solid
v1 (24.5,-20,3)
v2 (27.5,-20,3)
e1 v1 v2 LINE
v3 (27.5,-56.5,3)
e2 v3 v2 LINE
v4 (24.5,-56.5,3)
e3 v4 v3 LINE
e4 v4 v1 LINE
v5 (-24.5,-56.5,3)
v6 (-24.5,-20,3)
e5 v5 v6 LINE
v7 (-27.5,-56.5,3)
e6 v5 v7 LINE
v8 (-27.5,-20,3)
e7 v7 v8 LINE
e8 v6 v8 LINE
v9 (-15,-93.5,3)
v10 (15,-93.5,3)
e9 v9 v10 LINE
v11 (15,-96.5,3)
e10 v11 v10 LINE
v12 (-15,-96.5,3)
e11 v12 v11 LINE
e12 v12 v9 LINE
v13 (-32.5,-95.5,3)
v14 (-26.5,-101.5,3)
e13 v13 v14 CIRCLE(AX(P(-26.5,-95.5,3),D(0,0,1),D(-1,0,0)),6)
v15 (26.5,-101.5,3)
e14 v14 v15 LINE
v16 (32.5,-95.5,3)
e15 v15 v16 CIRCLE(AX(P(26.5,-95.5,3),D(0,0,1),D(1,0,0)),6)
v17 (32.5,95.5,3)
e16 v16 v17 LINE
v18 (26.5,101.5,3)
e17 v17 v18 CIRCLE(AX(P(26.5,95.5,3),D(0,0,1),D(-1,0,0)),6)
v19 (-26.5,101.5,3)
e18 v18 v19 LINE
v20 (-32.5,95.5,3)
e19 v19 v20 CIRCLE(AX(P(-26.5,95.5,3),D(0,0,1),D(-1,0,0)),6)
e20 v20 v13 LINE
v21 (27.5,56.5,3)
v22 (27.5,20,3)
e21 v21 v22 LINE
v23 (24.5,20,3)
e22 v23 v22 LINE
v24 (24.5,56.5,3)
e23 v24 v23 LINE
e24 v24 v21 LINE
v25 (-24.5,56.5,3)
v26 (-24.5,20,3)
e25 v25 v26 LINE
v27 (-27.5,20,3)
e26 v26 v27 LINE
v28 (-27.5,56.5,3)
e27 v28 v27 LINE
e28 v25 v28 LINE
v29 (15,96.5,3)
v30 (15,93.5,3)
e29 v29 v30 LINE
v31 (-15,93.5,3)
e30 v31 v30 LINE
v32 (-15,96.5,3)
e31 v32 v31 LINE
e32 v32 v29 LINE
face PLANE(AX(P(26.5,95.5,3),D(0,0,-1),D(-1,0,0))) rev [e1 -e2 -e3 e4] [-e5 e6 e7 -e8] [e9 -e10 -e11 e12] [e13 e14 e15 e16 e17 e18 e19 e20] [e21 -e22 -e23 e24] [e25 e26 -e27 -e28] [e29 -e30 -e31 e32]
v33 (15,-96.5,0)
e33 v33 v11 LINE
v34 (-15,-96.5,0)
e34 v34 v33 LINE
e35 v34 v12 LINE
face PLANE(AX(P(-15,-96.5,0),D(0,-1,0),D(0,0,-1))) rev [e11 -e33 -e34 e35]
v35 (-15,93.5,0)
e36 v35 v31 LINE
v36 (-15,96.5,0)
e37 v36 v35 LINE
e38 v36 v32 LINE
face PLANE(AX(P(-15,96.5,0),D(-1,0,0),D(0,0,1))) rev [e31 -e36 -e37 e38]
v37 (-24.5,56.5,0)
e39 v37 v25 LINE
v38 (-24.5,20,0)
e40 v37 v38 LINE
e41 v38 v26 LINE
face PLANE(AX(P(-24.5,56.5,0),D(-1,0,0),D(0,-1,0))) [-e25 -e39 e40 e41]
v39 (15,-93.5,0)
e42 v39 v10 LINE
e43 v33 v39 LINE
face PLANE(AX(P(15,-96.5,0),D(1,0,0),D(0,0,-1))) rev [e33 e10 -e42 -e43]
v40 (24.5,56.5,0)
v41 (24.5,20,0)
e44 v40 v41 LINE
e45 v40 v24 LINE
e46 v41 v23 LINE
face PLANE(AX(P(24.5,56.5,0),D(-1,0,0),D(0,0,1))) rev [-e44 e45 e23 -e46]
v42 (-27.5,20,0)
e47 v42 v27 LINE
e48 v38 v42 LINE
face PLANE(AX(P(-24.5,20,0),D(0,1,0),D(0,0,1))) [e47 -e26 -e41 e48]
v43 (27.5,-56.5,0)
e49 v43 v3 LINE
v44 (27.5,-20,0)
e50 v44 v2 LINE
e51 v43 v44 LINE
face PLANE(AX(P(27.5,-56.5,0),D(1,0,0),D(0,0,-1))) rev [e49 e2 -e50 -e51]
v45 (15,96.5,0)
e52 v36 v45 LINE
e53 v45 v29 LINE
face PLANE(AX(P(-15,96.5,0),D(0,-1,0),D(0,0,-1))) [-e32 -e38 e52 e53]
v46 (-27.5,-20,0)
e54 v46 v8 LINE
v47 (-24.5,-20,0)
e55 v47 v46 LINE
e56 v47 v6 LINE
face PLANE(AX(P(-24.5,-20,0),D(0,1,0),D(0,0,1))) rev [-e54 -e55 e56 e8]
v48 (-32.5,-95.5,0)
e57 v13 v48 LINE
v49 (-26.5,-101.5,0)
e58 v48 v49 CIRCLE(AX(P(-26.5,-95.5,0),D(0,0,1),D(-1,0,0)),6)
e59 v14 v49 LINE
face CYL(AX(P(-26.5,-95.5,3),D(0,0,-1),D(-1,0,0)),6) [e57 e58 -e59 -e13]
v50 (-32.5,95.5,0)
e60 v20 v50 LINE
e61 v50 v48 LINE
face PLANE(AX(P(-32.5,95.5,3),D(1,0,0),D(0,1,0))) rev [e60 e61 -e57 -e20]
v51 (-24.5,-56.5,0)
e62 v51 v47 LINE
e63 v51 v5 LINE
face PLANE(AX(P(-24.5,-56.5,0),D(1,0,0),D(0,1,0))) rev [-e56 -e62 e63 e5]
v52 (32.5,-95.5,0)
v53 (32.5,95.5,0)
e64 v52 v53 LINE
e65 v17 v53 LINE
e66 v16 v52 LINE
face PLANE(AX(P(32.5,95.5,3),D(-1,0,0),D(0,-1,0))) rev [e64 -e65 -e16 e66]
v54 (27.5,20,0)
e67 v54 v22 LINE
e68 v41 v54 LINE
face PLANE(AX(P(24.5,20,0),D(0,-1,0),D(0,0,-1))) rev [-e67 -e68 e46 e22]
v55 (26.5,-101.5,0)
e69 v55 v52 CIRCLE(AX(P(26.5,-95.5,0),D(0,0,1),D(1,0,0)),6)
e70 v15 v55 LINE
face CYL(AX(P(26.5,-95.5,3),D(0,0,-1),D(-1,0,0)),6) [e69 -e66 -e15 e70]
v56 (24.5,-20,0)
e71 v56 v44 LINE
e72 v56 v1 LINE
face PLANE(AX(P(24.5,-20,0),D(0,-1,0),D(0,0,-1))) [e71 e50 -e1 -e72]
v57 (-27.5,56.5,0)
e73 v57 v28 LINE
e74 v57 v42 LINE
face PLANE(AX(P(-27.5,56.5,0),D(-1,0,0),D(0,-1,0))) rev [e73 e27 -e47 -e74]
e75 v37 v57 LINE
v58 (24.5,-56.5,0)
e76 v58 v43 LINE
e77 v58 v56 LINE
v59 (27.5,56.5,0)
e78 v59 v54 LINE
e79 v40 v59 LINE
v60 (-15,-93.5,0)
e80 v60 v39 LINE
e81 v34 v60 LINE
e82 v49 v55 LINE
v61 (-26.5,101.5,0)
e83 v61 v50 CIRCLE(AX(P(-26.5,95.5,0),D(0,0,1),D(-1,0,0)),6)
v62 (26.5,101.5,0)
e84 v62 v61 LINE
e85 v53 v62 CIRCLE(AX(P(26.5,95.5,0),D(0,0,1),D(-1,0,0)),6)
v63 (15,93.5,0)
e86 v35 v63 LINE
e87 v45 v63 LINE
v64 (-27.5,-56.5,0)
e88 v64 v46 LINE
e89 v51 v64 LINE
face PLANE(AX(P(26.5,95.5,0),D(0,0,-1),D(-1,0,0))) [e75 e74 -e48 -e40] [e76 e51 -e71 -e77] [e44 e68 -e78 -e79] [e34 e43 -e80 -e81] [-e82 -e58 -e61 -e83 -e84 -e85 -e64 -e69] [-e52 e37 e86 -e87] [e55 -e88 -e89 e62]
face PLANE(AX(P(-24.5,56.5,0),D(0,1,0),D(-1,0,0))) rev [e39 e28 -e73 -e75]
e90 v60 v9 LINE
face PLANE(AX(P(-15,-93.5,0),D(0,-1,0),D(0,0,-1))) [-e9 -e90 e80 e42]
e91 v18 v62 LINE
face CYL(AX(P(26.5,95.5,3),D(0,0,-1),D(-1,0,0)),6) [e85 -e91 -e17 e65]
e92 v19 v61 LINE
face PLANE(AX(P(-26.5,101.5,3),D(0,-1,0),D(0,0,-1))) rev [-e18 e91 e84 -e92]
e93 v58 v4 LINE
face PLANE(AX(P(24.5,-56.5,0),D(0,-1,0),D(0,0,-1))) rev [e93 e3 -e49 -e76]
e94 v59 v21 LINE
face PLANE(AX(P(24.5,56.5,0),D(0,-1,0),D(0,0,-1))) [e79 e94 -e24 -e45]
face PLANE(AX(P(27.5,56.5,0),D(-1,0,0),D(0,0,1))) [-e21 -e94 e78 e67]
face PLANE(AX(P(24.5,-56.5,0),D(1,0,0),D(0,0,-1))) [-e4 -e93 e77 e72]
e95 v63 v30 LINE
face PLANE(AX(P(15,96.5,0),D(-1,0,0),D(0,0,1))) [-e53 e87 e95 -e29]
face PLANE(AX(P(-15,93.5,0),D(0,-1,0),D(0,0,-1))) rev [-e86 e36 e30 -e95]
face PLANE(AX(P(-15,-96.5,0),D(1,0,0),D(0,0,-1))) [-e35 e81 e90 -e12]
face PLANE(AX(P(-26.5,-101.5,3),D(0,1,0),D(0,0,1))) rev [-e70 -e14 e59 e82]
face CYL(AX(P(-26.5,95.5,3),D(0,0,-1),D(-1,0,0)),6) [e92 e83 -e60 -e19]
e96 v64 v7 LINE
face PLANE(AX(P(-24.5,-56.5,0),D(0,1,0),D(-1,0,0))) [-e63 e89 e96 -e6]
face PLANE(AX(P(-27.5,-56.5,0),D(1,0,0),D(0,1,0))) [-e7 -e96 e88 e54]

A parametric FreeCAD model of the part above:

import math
import FreeCAD as App
import Part
import Sketcher
Q = App.Units.Quantity


def add_polygon(sketch, points):
    """Adds a closed chain of lines whose ends are joined by coincident constraints."""
    first, n = sketch.GeometryCount, len(points)
    for a, b in zip(points, points[1:] + points[:1]):
        sketch.addGeometry(Part.LineSegment(App.Vector(*a, 0), App.Vector(*b, 0)), False)
    for i in range(n):
        sketch.addConstraint(Sketcher.Constraint("Coincident", first + i, 2, first + (i + 1) % n, 1))

doc = App.newDocument("Part")
params = doc.addObject("Spreadsheet::Sheet", "Params")
for row, (alias, value) in enumerate([
    ("sketch1_radius", "6 mm"),
    ("sketch1_width", "53 mm"),
    ("sketch1_height", "191 mm"),
    ("pad1_length", "3 mm"),
    ("sketch2_width", "3 mm"),
    ("sketch2_width2", "30 mm"),
    ("sketch2_height", "36.5 mm"),
    ("pocket1_length", "3 mm"),
], start=1):
    params.set(f"A{row}", alias)
    params.set(f"B{row}", "=" + value)
    params.setAlias(f"B{row}", alias)

body = doc.addObject("PartDesign::Body", "Body")

# Sketch on XY plane
sketch1 = body.newObject("Sketcher::SketchObject", "Sketch")
sketch1.AttachmentSupport = (doc.getObject("XY_Plane"), [""])
sketch1.MapMode = "FlatFace"
sketch1.addGeometry([
    Part.LineSegment(App.Vector(26, 102, 0), App.Vector(-26, 102, 0)),  # 0
    Part.ArcOfCircle(Part.Circle(App.Vector(-26, 96, 0), App.Vector(0, 0, 1), 6), math.radians(90), math.radians(180)),  # 1
    Part.LineSegment(App.Vector(-32, 96, 0), App.Vector(-32, -96, 0)),  # 2
    Part.ArcOfCircle(Part.Circle(App.Vector(-26, -96, 0), App.Vector(0, 0, 1), 6), math.radians(180), math.radians(270)),  # 3
    Part.LineSegment(App.Vector(-26, -102, 0), App.Vector(26, -102, 0)),  # 4
    Part.ArcOfCircle(Part.Circle(App.Vector(26, -96, 0), App.Vector(0, 0, 1), 6), math.radians(-90), math.radians(0)),  # 5
    Part.LineSegment(App.Vector(32, -96, 0), App.Vector(32, 96, 0)),  # 6
    Part.ArcOfCircle(Part.Circle(App.Vector(26, 96, 0), App.Vector(0, 0, 1), 6), math.radians(0), math.radians(90)),  # 7
], False)
sketch1.addConstraint([
    Sketcher.Constraint("Tangent", 0, 2, 1, 1),
    Sketcher.Constraint("Tangent", 1, 2, 2, 1),
    Sketcher.Constraint("Tangent", 2, 2, 3, 1),
    Sketcher.Constraint("Tangent", 3, 2, 4, 1),
    Sketcher.Constraint("Tangent", 4, 2, 5, 1),
    Sketcher.Constraint("Tangent", 5, 2, 6, 1),
    Sketcher.Constraint("Tangent", 6, 2, 7, 1),
    Sketcher.Constraint("Tangent", 7, 2, 0, 1),
    Sketcher.Constraint("Horizontal", 0),
    Sketcher.Constraint("Vertical", 2),
    Sketcher.Constraint("Horizontal", 4),
    Sketcher.Constraint("Vertical", 6),
    Sketcher.Constraint("Equal", 1, 3),
    Sketcher.Constraint("Equal", 3, 5),
    Sketcher.Constraint("Equal", 5, 7),
    Sketcher.Constraint("Symmetric", 1, 3, 5, 3, -1, 1),
    Sketcher.Constraint("Radius", 1, Q("6 mm")),
    Sketcher.Constraint("DistanceX", 0, 2, 0, 1, Q("53 mm")),
    Sketcher.Constraint("DistanceY", 2, 2, 2, 1, Q("191 mm")),
])
sketch1.setExpression("Constraints[16]", "Params.sketch1_radius")
sketch1.setExpression("Constraints[17]", "Params.sketch1_width")
sketch1.setExpression("Constraints[18]", "Params.sketch1_height")
pad1 = body.newObject("PartDesign::Pad", "Pad")
pad1.Profile = sketch1
pad1.setExpression("Length", "Params.pad1_length")

# Sketch on XY plane
sketch2 = body.newObject("Sketcher::SketchObject", "Sketch001")
sketch2.AttachmentSupport = (doc.getObject("XY_Plane"), [""])
sketch2.MapMode = "FlatFace"
sketch2.AttachmentOffset = App.Placement(App.Vector(0, 0, 3), App.Rotation())
add_polygon(sketch2, [(24.5, -20), (24.5, -56.5), (27.5, -56.5), (27.5, -20)])  # lines 0-3
add_polygon(sketch2, [(-15, 96.5), (-15, 93.5), (15, 93.5), (15, 96.5)])  # lines 4-7
add_polygon(sketch2, [(24.5, 56.5), (24.5, 20), (27.5, 20), (27.5, 56.5)])  # lines 8-11
add_polygon(sketch2, [(-15, -93.5), (-15, -96.5), (15, -96.5), (15, -93.5)])  # lines 12-15
add_polygon(sketch2, [(-27.5, 56.5), (-27.5, 20), (-24.5, 20), (-24.5, 56.5)])  # lines 16-19
add_polygon(sketch2, [(-27.5, -20), (-27.5, -56.5), (-24.5, -56.5), (-24.5, -20)])  # lines 20-23
sketch2.addConstraint([
    Sketcher.Constraint("Vertical", 0),
    Sketcher.Constraint("Horizontal", 1),
    Sketcher.Constraint("Vertical", 2),
    Sketcher.Constraint("Horizontal", 3),
    Sketcher.Constraint("Vertical", 4),
    Sketcher.Constraint("Horizontal", 5),
    Sketcher.Constraint("Vertical", 6),
    Sketcher.Constraint("Horizontal", 7),
    Sketcher.Constraint("Vertical", 8),
    Sketcher.Constraint("Horizontal", 9),
    Sketcher.Constraint("Vertical", 10),
    Sketcher.Constraint("Horizontal", 11),
    Sketcher.Constraint("Vertical", 12),
    Sketcher.Constraint("Horizontal", 13),
    Sketcher.Constraint("Vertical", 14),
    Sketcher.Constraint("Horizontal", 15),
    Sketcher.Constraint("Vertical", 16),
    Sketcher.Constraint("Horizontal", 17),
    Sketcher.Constraint("Vertical", 18),
    Sketcher.Constraint("Horizontal", 19),
    Sketcher.Constraint("Vertical", 20),
    Sketcher.Constraint("Horizontal", 21),
    Sketcher.Constraint("Vertical", 22),
    Sketcher.Constraint("Horizontal", 23),
    Sketcher.Constraint("Symmetric", 6, 2, 12, 2, -1, 1),
    Sketcher.Constraint("Symmetric", 4, 2, 14, 2, -1, 1),
    Sketcher.Constraint("Symmetric", 2, 2, 16, 2, -1, 1),
    Sketcher.Constraint("Symmetric", 0, 2, 18, 2, -1, 1),
    Sketcher.Constraint("Symmetric", 10, 2, 20, 2, -1, 1),
    Sketcher.Constraint("Symmetric", 8, 2, 22, 2, -1, 1),
    Sketcher.Constraint("Symmetric", 9, 2, 16, 2, -2),
    Sketcher.Constraint("Symmetric", 11, 2, 18, 2, -2),
    Sketcher.Constraint("Vertical", 7, 2, 12, 2),
    Sketcher.Constraint("Equal", 23, 4),
    Sketcher.Constraint("DistanceX", 1, 1, 1, 2, Q("3 mm")),
    Sketcher.Constraint("DistanceX", 5, 1, 5, 2, Q("30 mm")),
    Sketcher.Constraint("DistanceY", 0, 2, 0, 1, Q("36.5 mm")),
    Sketcher.Constraint("DistanceY", 2, 2, -1, 1, Q("20 mm")),
    Sketcher.Constraint("DistanceY", 0, 2, 4, 2, Q("150 mm")),
    Sketcher.Constraint("DistanceX", 16, 2, 8, 2, Q("52 mm")),
])
sketch2.setExpression("Constraints[58]", "Params.sketch2_width")
sketch2.setExpression("Constraints[59]", "Params.sketch2_width2")
sketch2.setExpression("Constraints[60]", "Params.sketch2_height")
pocket1 = body.newObject("PartDesign::Pocket", "Pocket")
pocket1.Profile = sketch2
pocket1.setExpression("Length", "Params.pocket1_length")

doc.recompute()
